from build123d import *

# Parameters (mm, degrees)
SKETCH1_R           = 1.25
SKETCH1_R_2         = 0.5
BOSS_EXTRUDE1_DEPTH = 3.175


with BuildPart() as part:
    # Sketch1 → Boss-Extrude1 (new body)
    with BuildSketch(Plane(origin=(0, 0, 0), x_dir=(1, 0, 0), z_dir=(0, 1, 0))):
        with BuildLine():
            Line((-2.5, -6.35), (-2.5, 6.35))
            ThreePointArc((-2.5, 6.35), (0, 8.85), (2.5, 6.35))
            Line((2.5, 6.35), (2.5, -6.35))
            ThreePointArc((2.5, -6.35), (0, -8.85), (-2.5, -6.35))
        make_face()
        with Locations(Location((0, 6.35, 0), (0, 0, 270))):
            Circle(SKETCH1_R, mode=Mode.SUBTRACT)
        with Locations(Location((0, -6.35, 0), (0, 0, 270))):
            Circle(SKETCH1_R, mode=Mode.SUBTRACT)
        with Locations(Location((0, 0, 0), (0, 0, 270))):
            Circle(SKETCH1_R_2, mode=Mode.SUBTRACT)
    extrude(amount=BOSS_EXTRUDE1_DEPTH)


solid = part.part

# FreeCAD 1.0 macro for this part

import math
import FreeCAD as App
import Part
import Sketcher
from FreeCAD import Vector

doc = App.newDocument("Part")
body = doc.addObject("PartDesign::Body", "Body")

# Sketch on XZ plane
sketch1 = body.newObject("Sketcher::SketchObject", "Sketch")
sketch1.AttachmentSupport = (doc.getObject("XZ_Plane"), [""])
sketch1.MapMode = "FlatFace"
sketch1.addGeometry([
    Part.LineSegment(Vector(-2.5, -6.3, 0), Vector(-2.5, 6.3, 0)),  # 0
    Part.ArcOfCircle(Part.Circle(Vector(0, 6.3, 0), Vector(0, 0, 1), 2.5), math.radians(0), math.radians(180)),  # 1
    Part.LineSegment(Vector(2.5, 6.3, 0), Vector(2.5, -6.3, 0)),  # 2
    Part.ArcOfCircle(Part.Circle(Vector(0, -6.3, 0), Vector(0, 0, 1), 2.5), math.radians(180), math.radians(360)),  # 3
    Part.Circle(Vector(0, 6.3, 0), Vector(0, 0, 1), 1.2),  # 4
    Part.Circle(Vector(0, 0, 0), Vector(0, 0, 1), 0.5),  # 5
    Part.Circle(Vector(0, -6.3, 0), Vector(0, 0, 1), 1.2),  # 6
], False)
sketch1.addConstraint([
    Sketcher.Constraint("Tangent", 0, 2, 1, 2),
    Sketcher.Constraint("Tangent", 1, 1, 2, 1),
    Sketcher.Constraint("Tangent", 2, 2, 3, 2),
    Sketcher.Constraint("Tangent", 3, 1, 0, 1),
    Sketcher.Constraint("Vertical", 0),
    Sketcher.Constraint("Vertical", 2),
    Sketcher.Constraint("Coincident", 5, 3, -1, 1),
    Sketcher.Constraint("Coincident", 4, 3, 1, 3),
    Sketcher.Constraint("Coincident", 6, 3, 3, 3),
    Sketcher.Constraint("Equal", 4, 6),
    Sketcher.Constraint("Symmetric", 1, 3, 3, 3, -1, 1),
    Sketcher.Constraint("Diameter", 5, 1.0),
    Sketcher.Constraint("Diameter", 4, 2.5),
    Sketcher.Constraint("Radius", 1, 2.5),
    Sketcher.Constraint("DistanceY", 0, 1, 0, 2, 12.7),
])
pad1 = body.newObject("PartDesign::Pad", "Pad")
pad1.Profile = sketch1
pad1.Length = 3.175
pad1.Reversed = True

doc.recompute()
